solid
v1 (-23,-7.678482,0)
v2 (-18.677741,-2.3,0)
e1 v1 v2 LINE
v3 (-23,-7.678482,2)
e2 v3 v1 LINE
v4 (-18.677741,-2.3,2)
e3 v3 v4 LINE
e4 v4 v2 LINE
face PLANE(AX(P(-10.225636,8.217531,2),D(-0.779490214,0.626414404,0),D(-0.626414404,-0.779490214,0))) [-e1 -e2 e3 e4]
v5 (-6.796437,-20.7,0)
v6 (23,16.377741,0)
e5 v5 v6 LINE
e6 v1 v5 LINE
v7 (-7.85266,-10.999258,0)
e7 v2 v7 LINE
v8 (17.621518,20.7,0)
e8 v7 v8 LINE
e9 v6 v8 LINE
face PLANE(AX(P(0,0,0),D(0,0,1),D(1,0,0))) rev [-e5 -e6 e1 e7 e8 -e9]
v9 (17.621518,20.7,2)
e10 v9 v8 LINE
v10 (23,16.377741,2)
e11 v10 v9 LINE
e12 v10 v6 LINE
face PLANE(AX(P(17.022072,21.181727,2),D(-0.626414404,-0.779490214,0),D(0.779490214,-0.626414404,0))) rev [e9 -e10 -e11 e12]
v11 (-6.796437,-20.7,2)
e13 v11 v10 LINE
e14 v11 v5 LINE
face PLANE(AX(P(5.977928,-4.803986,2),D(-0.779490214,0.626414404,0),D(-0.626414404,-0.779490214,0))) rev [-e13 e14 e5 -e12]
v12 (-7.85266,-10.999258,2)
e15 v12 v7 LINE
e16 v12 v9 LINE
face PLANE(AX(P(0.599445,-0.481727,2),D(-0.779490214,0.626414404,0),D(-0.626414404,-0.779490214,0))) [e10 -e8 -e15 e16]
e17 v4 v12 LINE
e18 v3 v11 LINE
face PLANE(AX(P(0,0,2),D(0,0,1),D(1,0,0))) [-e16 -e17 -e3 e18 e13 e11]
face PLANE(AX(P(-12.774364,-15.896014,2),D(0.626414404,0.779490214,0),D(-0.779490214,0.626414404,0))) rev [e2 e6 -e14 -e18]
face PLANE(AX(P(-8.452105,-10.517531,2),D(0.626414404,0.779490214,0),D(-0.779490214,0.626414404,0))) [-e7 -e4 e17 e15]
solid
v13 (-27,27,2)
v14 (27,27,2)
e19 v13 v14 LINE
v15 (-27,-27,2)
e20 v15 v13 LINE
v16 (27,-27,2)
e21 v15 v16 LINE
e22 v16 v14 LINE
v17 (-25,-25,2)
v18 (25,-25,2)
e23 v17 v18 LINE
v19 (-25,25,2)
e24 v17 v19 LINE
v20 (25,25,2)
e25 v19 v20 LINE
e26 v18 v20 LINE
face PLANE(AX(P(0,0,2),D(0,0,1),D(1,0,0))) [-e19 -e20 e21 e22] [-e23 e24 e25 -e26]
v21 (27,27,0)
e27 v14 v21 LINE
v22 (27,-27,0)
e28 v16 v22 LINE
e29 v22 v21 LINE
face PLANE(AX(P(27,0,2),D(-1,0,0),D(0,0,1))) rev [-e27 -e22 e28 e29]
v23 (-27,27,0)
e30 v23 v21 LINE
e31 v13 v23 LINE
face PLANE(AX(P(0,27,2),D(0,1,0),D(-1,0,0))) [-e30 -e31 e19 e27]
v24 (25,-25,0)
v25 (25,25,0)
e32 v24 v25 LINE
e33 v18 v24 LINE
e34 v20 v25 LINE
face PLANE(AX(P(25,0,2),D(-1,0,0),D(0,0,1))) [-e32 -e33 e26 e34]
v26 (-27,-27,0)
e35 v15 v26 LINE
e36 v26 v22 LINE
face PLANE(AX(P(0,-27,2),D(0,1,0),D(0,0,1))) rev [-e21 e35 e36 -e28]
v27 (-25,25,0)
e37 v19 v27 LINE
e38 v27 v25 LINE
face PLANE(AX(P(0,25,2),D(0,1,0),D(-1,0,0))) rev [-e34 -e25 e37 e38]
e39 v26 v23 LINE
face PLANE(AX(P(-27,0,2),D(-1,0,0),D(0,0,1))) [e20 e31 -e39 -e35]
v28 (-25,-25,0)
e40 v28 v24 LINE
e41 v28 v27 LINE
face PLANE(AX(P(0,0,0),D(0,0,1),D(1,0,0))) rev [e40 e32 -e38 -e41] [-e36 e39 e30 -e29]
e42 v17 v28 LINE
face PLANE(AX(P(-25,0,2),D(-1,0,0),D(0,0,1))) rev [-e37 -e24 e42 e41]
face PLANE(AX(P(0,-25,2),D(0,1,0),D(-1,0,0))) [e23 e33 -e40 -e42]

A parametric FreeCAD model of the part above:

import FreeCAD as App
import Part
import Sketcher

V = App.Vector

doc = App.newDocument("Part")
body = doc.addObject("PartDesign::Body", "Body")
body.AllowCompound = True

# Sketch on XY plane
sketch1 = body.newObject("Sketcher::SketchObject", "Sketch")
sketch1.AttachmentSupport = (doc.getObject("XY_Plane"), [""])
sketch1.MapMode = "FlatFace"
sketch1.addGeometry(Part.LineSegment(V(-27, 27, 0), V(-27, -27, 0)), False)
sketch1.addGeometry(Part.LineSegment(V(-27, -27, 0), V(27, -27, 0)), False)
sketch1.addGeometry(Part.LineSegment(V(27, -27, 0), V(27, 27, 0)), False)
sketch1.addGeometry(Part.LineSegment(V(27, 27, 0), V(-27, 27, 0)), False)
sketch1.addGeometry(Part.LineSegment(V(25, -25, 0), V(-25, -25, 0)), False)
sketch1.addGeometry(Part.LineSegment(V(-25, -25, 0), V(-25, 25, 0)), False)
sketch1.addGeometry(Part.LineSegment(V(-25, 25, 0), V(25, 25, 0)), False)
sketch1.addGeometry(Part.LineSegment(V(25, 25, 0), V(25, -25, 0)), False)
sketch1.addGeometry(Part.LineSegment(V(-12.174919, -16.377741, 0), V(-6.796437, -20.7, 0)), False)
sketch1.addGeometry(Part.LineSegment(V(-6.796437, -20.7, 0), V(-2.474177, -15.321518, 0)), False)
sketch1.addGeometry(Part.LineSegment(V(-2.474177, -15.321518, 0), V(23, 16.377741, 0)), False)
sketch1.addGeometry(Part.LineSegment(V(23, 16.377741, 0), V(17.621518, 20.7, 0)), False)
sketch1.addGeometry(Part.LineSegment(V(17.621518, 20.7, 0), V(-7.85266, -10.999258, 0)), False)
sketch1.addGeometry(Part.LineSegment(V(-7.85266, -10.999258, 0), V(-18.677741, -2.3, 0)), False)
sketch1.addGeometry(Part.LineSegment(V(-18.677741, -2.3, 0), V(-23, -7.678482, 0)), False)
sketch1.addGeometry(Part.LineSegment(V(-23, -7.678482, 0), V(-12.174919, -16.377741, 0)), False)
sketch1.addConstraint(Sketcher.Constraint("Coincident", 0, 2, 1, 1))
sketch1.addConstraint(Sketcher.Constraint("Coincident", 1, 2, 2, 1))
sketch1.addConstraint(Sketcher.Constraint("Coincident", 2, 2, 3, 1))
sketch1.addConstraint(Sketcher.Constraint("Coincident", 3, 2, 0, 1))
sketch1.addConstraint(Sketcher.Constraint("Coincident", 4, 2, 5, 1))
sketch1.addConstraint(Sketcher.Constraint("Coincident", 5, 2, 6, 1))
sketch1.addConstraint(Sketcher.Constraint("Coincident", 6, 2, 7, 1))
sketch1.addConstraint(Sketcher.Constraint("Coincident", 7, 2, 4, 1))
sketch1.addConstraint(Sketcher.Constraint("Coincident", 8, 2, 9, 1))
sketch1.addConstraint(Sketcher.Constraint("Coincident", 9, 2, 10, 1))
sketch1.addConstraint(Sketcher.Constraint("Coincident", 10, 2, 11, 1))
sketch1.addConstraint(Sketcher.Constraint("Coincident", 11, 2, 12, 1))
sketch1.addConstraint(Sketcher.Constraint("Coincident", 12, 2, 13, 1))
sketch1.addConstraint(Sketcher.Constraint("Coincident", 13, 2, 14, 1))
sketch1.addConstraint(Sketcher.Constraint("Coincident", 14, 2, 15, 1))
sketch1.addConstraint(Sketcher.Constraint("Coincident", 15, 2, 8, 1))
sketch1.addConstraint(Sketcher.Constraint("Vertical", 0))
sketch1.addConstraint(Sketcher.Constraint("Horizontal", 1))
sketch1.addConstraint(Sketcher.Constraint("Vertical", 2))
sketch1.addConstraint(Sketcher.Constraint("Horizontal", 3))
sketch1.addConstraint(Sketcher.Constraint("Horizontal", 4))
sketch1.addConstraint(Sketcher.Constraint("Vertical", 5))
sketch1.addConstraint(Sketcher.Constraint("Horizontal", 6))
sketch1.addConstraint(Sketcher.Constraint("Vertical", 7))
sketch1.addConstraint(Sketcher.Constraint("Symmetric", 0, 2, 2, 2, -1, 1))
sketch1.addConstraint(Sketcher.Constraint("Symmetric", 4, 2, 6, 2, -1, 1))
sketch1.addConstraint(Sketcher.Constraint("Perpendicular", 8, 9))
sketch1.addConstraint(Sketcher.Constraint("Parallel", 9, 10))
sketch1.addConstraint(Sketcher.Constraint("Perpendicular", 10, 11))
sketch1.addConstraint(Sketcher.Constraint("Perpendicular", 11, 12))
sketch1.addConstraint(Sketcher.Constraint("Perpendicular", 12, 13))
sketch1.addConstraint(Sketcher.Constraint("Perpendicular", 13, 14))
sketch1.addConstraint(Sketcher.Constraint("Perpendicular", 14, 15))
sketch1.addConstraint(Sketcher.Constraint("Equal", 3, 0))
sketch1.addConstraint(Sketcher.Constraint("Equal", 6, 5))
sketch1.addConstraint(Sketcher.Constraint("Equal", 8, 9))
sketch1.addConstraint(Sketcher.Constraint("Equal", 9, 11))
sketch1.addConstraint(Sketcher.Constraint("Equal", 10, 12))
sketch1.addConstraint(Sketcher.Constraint("DistanceX", 1, 1, 1, 2, 54.0))
sketch1.addConstraint(Sketcher.Constraint("DistanceX", 4, 2, 4, 1, 50.0))
sketch1.addConstraint(Sketcher.Constraint("DistanceX", -1, 1, 10, 2, 23.0))
sketch1.addConstraint(Sketcher.Constraint("DistanceX", 14, 2, -1, 1, 23.0))
sketch1.addConstraint(Sketcher.Constraint("Distance", 8, 6.9))
sketch1.addConstraint(Sketcher.Constraint("DistanceY", 8, 2, -1, 1, 20.7))
sketch1.addConstraint(Sketcher.Constraint("DistanceY", -1, 1, 11, 2, 20.7))
sketch1.addConstraint(Sketcher.Constraint("DistanceY", 13, 2, -1, 1, 2.3))
pad1 = body.newObject("PartDesign::Pad", "Pad")
pad1.Profile = sketch1
pad1.Length = 2

doc.recompute()
